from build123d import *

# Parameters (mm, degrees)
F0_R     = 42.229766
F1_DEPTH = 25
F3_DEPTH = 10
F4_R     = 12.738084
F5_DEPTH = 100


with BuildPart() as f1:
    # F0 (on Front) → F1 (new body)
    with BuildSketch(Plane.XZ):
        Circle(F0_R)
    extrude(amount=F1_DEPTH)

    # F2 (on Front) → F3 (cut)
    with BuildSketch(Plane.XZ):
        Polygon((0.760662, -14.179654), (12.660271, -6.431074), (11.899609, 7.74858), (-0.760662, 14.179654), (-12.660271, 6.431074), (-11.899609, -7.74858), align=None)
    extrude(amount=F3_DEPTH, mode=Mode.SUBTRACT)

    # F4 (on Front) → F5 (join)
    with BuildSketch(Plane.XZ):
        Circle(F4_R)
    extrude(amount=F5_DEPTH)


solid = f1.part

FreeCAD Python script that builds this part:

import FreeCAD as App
import Part
import Sketcher
from FreeCAD import Vector

doc = App.newDocument("Part")
params = doc.addObject("Spreadsheet::Sheet", "Params")
for row, (alias, value) in enumerate([
    ("pad1_length", "25 mm"),
    ("pocket1_length", "10 mm"),
    ("pad2_length", "100 mm"),
], start=1):
    params.set(f"A{row}", alias)
    params.set(f"B{row}", "=" + value)
    params.setAlias(f"B{row}", alias)

body = doc.addObject("PartDesign::Body", "Body")

sketch1 = doc.addObject("Sketcher::SketchObject", "Sketch")
body.addObject(sketch1)
sketch1.AttachmentSupport = (doc.XZ_Plane, [""])
sketch1.MapMode = "FlatFace"
sketch1.addGeometry(Part.Circle(Vector(0, 0, 0), Vector(0, 0, 1), 42), False)
sketch1.addConstraint([
    Sketcher.Constraint("Coincident", 0, 3, -1, 1),
    Sketcher.Constraint("Diameter", 0, 84.459532),
])
pad1 = doc.addObject("PartDesign::Pad", "Pad")
body.addObject(pad1)
pad1.Profile = sketch1
pad1.setExpression("Length", "Params.pad1_length")

sketch2 = doc.addObject("Sketcher::SketchObject", "Sketch001")
body.addObject(sketch2)
sketch2.AttachmentSupport = (doc.XZ_Plane, [""])
sketch2.MapMode = "FlatFace"
sketch2.addGeometry([
    Part.LineSegment(Vector(1, -14, 0), Vector(13, -6, 0)),
    Part.LineSegment(Vector(13, -6, 0), Vector(12, 8, 0)),
    Part.LineSegment(Vector(12, 8, 0), Vector(-1, 14, 0)),
    Part.LineSegment(Vector(-1, 14, 0), Vector(-13, 6, 0)),
    Part.LineSegment(Vector(-13, 6, 0), Vector(-12, -8, 0)),
    Part.LineSegment(Vector(-12, -8, 0), Vector(1, -14, 0)),
], False)
sketch2.addConstraint([
    Sketcher.Constraint("Coincident", 0, 2, 1, 1),
    Sketcher.Constraint("Coincident", 1, 2, 2, 1),
    Sketcher.Constraint("Coincident", 2, 2, 3, 1),
    Sketcher.Constraint("Coincident", 3, 2, 4, 1),
    Sketcher.Constraint("Coincident", 4, 2, 5, 1),
    Sketcher.Constraint("Coincident", 5, 2, 0, 1),
    Sketcher.Constraint("Symmetric", 0, 2, 3, 2, -1, 1),
    Sketcher.Constraint("Symmetric", 1, 2, 4, 2, -1, 1),
    Sketcher.Constraint("Symmetric", 2, 2, 5, 2, -1, 1),
    Sketcher.Constraint("Equal", 0, 1),
    Sketcher.Constraint("Equal", 1, 2),
    Sketcher.Constraint("Distance", 0, 14.200042),
    Sketcher.Constraint("DistanceX", -1, 1, 0, 2, 12.660271),
    Sketcher.Constraint("DistanceX", -1, 1, 1, 2, 11.899609),
    Sketcher.Constraint("DistanceY", -1, 1, 1, 2, 7.74858),
])
pocket1 = doc.addObject("PartDesign::Pocket", "Pocket")
body.addObject(pocket1)
pocket1.Profile = sketch2
pocket1.setExpression("Length", "Params.pocket1_length")
pocket1.Reversed = True

sketch3 = doc.addObject("Sketcher::SketchObject", "Sketch002")
body.addObject(sketch3)
sketch3.AttachmentSupport = (doc.XZ_Plane, [""])
sketch3.MapMode = "FlatFace"
sketch3.addGeometry(Part.Circle(Vector(0, 0, 0), Vector(0, 0, 1), 13), False)
sketch3.addConstraint([
    Sketcher.Constraint("Coincident", 0, 3, -1, 1),
    Sketcher.Constraint("Diameter", 0, 25.476168),
])
pad2 = doc.addObject("PartDesign::Pad", "Pad001")
body.addObject(pad2)
pad2.Profile = sketch3
pad2.setExpression("Length", "Params.pad2_length")

doc.recompute()
